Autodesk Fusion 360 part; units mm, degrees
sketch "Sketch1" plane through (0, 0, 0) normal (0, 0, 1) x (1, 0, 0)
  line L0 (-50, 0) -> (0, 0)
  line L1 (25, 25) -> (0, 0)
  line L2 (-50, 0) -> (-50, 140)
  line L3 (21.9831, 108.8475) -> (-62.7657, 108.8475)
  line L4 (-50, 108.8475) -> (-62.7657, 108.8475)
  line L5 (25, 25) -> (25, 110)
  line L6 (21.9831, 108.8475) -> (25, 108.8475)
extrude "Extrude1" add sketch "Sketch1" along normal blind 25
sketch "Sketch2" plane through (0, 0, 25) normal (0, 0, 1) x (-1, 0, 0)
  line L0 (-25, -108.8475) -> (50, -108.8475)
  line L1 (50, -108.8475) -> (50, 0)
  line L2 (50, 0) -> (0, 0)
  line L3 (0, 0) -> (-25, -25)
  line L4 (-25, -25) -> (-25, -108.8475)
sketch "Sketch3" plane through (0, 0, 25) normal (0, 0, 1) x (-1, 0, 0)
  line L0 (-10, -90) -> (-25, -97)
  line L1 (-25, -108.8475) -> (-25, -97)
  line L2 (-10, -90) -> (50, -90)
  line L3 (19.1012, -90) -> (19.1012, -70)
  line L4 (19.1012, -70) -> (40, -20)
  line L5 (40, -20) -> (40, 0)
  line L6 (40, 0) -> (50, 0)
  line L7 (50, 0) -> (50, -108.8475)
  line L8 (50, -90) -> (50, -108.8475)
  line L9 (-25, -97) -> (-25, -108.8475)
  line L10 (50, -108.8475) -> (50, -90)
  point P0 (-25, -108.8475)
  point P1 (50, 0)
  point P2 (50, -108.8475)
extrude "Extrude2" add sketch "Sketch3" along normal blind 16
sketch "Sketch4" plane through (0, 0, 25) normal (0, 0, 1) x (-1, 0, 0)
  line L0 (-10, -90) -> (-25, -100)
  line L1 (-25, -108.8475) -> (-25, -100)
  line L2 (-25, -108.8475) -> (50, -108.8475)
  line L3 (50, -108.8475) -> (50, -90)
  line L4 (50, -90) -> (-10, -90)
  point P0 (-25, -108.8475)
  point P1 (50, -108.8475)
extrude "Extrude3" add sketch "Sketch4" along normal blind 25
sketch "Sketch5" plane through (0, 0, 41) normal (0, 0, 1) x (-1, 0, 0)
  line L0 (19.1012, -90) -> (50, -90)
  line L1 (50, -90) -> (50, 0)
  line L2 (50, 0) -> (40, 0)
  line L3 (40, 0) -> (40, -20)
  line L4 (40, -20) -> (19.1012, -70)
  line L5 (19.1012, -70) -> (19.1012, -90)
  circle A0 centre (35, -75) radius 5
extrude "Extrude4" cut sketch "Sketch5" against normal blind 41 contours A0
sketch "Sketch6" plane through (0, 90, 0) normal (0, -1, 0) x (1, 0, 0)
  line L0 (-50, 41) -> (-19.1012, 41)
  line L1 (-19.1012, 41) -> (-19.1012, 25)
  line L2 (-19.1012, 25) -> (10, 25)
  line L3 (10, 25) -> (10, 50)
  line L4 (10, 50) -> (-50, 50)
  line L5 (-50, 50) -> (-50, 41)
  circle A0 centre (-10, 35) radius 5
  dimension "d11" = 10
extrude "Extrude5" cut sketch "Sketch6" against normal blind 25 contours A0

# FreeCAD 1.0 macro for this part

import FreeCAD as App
import Part
import Sketcher
from FreeCAD import Vector
Q = App.Units.Quantity

doc = App.newDocument("Part")
params = doc.addObject("Spreadsheet::Sheet", "Params")
for row, (alias, value) in enumerate([
    ("sketch1_width", "50 mm"),
    ("sketch1_width2", "75 mm"),
    ("pad1_length", "25 mm"),
    ("sketch2_width", "10 mm"),
    ("sketch2_height", "20 mm"),
    ("sketch2_height2", "90 mm"),
    ("pad2_length", "16 mm"),
    ("sketch3_width", "60 mm"),
    ("sketch3_width2", "75 mm"),
    ("pad3_length", "25 mm"),
    ("sketch4_diameter", "10 mm"),
    ("pocket1_length", "41 mm"),
    ("sketch5_diameter", "10 mm"),
    ("pocket2_length", "25 mm"),
], start=1):
    params.set(f"A{row}", alias)
    params.set(f"B{row}", "=" + value)
    params.setAlias(f"B{row}", alias)

body = doc.addObject("PartDesign::Body", "Body")

# Sketch on XY plane
sketch1 = body.newObject("Sketcher::SketchObject", "Sketch")
sketch1.AttachmentSupport = (doc.getObject("XY_Plane"), [""])
sketch1.MapMode = "FlatFace"
sketch1.addGeometry([
    Part.LineSegment(Vector(-50, 108.8475, 0), Vector(-50, 0, 0)),  # 0
    Part.LineSegment(Vector(-50, 0, 0), Vector(0, 0, 0)),  # 1
    Part.LineSegment(Vector(0, 0, 0), Vector(25, 25, 0)),  # 2
    Part.LineSegment(Vector(25, 25, 0), Vector(25, 108.8475, 0)),  # 3
    Part.LineSegment(Vector(25, 108.8475, 0), Vector(-50, 108.8475, 0)),  # 4
], False)
sketch1.addConstraint([
    Sketcher.Constraint("Coincident", 0, 2, 1, 1),
    Sketcher.Constraint("Coincident", 1, 2, 2, 1),
    Sketcher.Constraint("Coincident", 2, 2, 3, 1),
    Sketcher.Constraint("Coincident", 3, 2, 4, 1),
    Sketcher.Constraint("Coincident", 4, 2, 0, 1),
    Sketcher.Constraint("Vertical", 0),
    Sketcher.Constraint("Horizontal", 1),
    Sketcher.Constraint("Vertical", 3),
    Sketcher.Constraint("Horizontal", 4),
    Sketcher.Constraint("Coincident", 1, 2, -1, 1),
    Sketcher.Constraint("DistanceX", 1, 1, 1, 2, 50.0),
    Sketcher.Constraint("DistanceX", 4, 2, 4, 1, 75.0),
    Sketcher.Constraint("Angle", 2, Q("45 deg")),
    Sketcher.Constraint("DistanceY", 0, 2, 0, 1, 108.8475),
])
sketch1.setExpression("Constraints[10]", "Params.sketch1_width")
sketch1.setExpression("Constraints[11]", "Params.sketch1_width2")
pad1 = body.newObject("PartDesign::Pad", "Pad")
pad1.Profile = sketch1
pad1.setExpression("Length", "Params.pad1_length")

# Sketch on XY plane
sketch2 = body.newObject("Sketcher::SketchObject", "Sketch001")
sketch2.AttachmentSupport = (doc.getObject("XY_Plane"), [""])
sketch2.MapMode = "FlatFace"
sketch2.AttachmentOffset = App.Placement(Vector(0, 0, 25), App.Rotation())
sketch2.addGeometry([
    Part.LineSegment(Vector(-19.1012, 70, 0), Vector(-19.1012, 90, 0)),  # 0
    Part.LineSegment(Vector(-19.1012, 90, 0), Vector(-50, 90, 0)),  # 1
    Part.LineSegment(Vector(-50, 90, 0), Vector(-50, 0, 0)),  # 2
    Part.LineSegment(Vector(-50, 0, 0), Vector(-40, 0, 0)),  # 3
    Part.LineSegment(Vector(-40, 0, 0), Vector(-40, 20, 0)),  # 4
    Part.LineSegment(Vector(-40, 20, 0), Vector(-19.1012, 70, 0)),  # 5
], False)
sketch2.addConstraint([
    Sketcher.Constraint("Coincident", 0, 2, 1, 1),
    Sketcher.Constraint("Coincident", 1, 2, 2, 1),
    Sketcher.Constraint("Coincident", 2, 2, 3, 1),
    Sketcher.Constraint("Coincident", 3, 2, 4, 1),
    Sketcher.Constraint("Coincident", 4, 2, 5, 1),
    Sketcher.Constraint("Coincident", 5, 2, 0, 1),
    Sketcher.Constraint("Vertical", 0),
    Sketcher.Constraint("Horizontal", 1),
    Sketcher.Constraint("Vertical", 2),
    Sketcher.Constraint("Horizontal", 3),
    Sketcher.Constraint("Vertical", 4),
    Sketcher.Constraint("PointOnObject", 2, 2, -1),
    Sketcher.Constraint("Equal", 0, 4),
    Sketcher.Constraint("DistanceX", 3, 1, 3, 2, 10.0),
    Sketcher.Constraint("DistanceY", 0, 1, 0, 2, 20.0),
    Sketcher.Constraint("DistanceY", 2, 2, 2, 1, 90.0),
    Sketcher.Constraint("DistanceX", 1, 2, -1, 1, 50.0),
    Sketcher.Constraint("DistanceX", 1, 2, 1, 1, 30.8988),
])
sketch2.setExpression("Constraints[13]", "Params.sketch2_width")
sketch2.setExpression("Constraints[14]", "Params.sketch2_height")
sketch2.setExpression("Constraints[15]", "Params.sketch2_height2")
pad2 = body.newObject("PartDesign::Pad", "Pad001")
pad2.Profile = sketch2
pad2.setExpression("Length", "Params.pad2_length")

# Sketch on XY plane
sketch3 = body.newObject("Sketcher::SketchObject", "Sketch002")
sketch3.AttachmentSupport = (doc.getObject("XY_Plane"), [""])
sketch3.MapMode = "FlatFace"
sketch3.AttachmentOffset = App.Placement(Vector(0, 0, 25), App.Rotation())
sketch3.addGeometry([
    Part.LineSegment(Vector(-50, 90, 0), Vector(10, 90, 0)),  # 0
    Part.LineSegment(Vector(10, 90, 0), Vector(25, 100, 0)),  # 1
    Part.LineSegment(Vector(25, 100, 0), Vector(25, 108.8475, 0)),  # 2
    Part.LineSegment(Vector(25, 108.8475, 0), Vector(-50, 108.8475, 0)),  # 3
    Part.LineSegment(Vector(-50, 108.8475, 0), Vector(-50, 90, 0)),  # 4
], False)
sketch3.addConstraint([
    Sketcher.Constraint("Coincident", 0, 2, 1, 1),
    Sketcher.Constraint("Coincident", 1, 2, 2, 1),
    Sketcher.Constraint("Coincident", 2, 2, 3, 1),
    Sketcher.Constraint("Coincident", 3, 2, 4, 1),
    Sketcher.Constraint("Coincident", 4, 2, 0, 1),
    Sketcher.Constraint("Horizontal", 0),
    Sketcher.Constraint("Vertical", 2),
    Sketcher.Constraint("Horizontal", 3),
    Sketcher.Constraint("Vertical", 4),
    Sketcher.Constraint("DistanceX", 0, 1, 0, 2, 60.0),
    Sketcher.Constraint("DistanceX", 3, 2, 3, 1, 75.0),
    Sketcher.Constraint("DistanceX", -1, 1, 0, 2, 10.0),
    Sketcher.Constraint("DistanceY", -1, 1, 0, 2, 90.0),
    Sketcher.Constraint("DistanceY", -1, 1, 1, 2, 100.0),
    Sketcher.Constraint("DistanceY", 2, 1, 2, 2, 8.8475),
])
sketch3.setExpression("Constraints[9]", "Params.sketch3_width")
sketch3.setExpression("Constraints[10]", "Params.sketch3_width2")
pad3 = body.newObject("PartDesign::Pad", "Pad002")
pad3.Profile = sketch3
pad3.setExpression("Length", "Params.pad3_length")

# Sketch on XY plane
sketch4 = body.newObject("Sketcher::SketchObject", "Sketch003")
sketch4.AttachmentSupport = (doc.getObject("XY_Plane"), [""])
sketch4.MapMode = "FlatFace"
sketch4.AttachmentOffset = App.Placement(Vector(0, 0, 41), App.Rotation())
sketch4.addGeometry(Part.Circle(Vector(-35, 75, 0), Vector(0, 0, 1), 5), False)
sketch4.addConstraint([
    Sketcher.Constraint("Diameter", 0, 10.0),
    Sketcher.Constraint("DistanceX", 0, 3, -1, 1, 35.0),
    Sketcher.Constraint("DistanceY", -1, 1, 0, 3, 75.0),
])
sketch4.setExpression("Constraints[0]", "Params.sketch4_diameter")
pocket1 = body.newObject("PartDesign::Pocket", "Pocket")
pocket1.Profile = sketch4
pocket1.setExpression("Length", "Params.pocket1_length")

# Sketch on XZ plane
sketch5 = body.newObject("Sketcher::SketchObject", "Sketch004")
sketch5.AttachmentSupport = (doc.getObject("XZ_Plane"), [""])
sketch5.MapMode = "FlatFace"
sketch5.AttachmentOffset = App.Placement(Vector(0, 0, -90), App.Rotation())
sketch5.addGeometry(Part.Circle(Vector(-10, 35, 0), Vector(0, 0, 1), 5), False)
sketch5.addConstraint([
    Sketcher.Constraint("Diameter", 0, 10.0),
    Sketcher.Constraint("DistanceX", 0, 3, -1, 1, 10.0),
    Sketcher.Constraint("DistanceY", -1, 1, 0, 3, 35.0),
])
sketch5.setExpression("Constraints[0]", "Params.sketch5_diameter")
pocket2 = body.newObject("PartDesign::Pocket", "Pocket001")
pocket2.Profile = sketch5
pocket2.setExpression("Length", "Params.pocket2_length")

doc.recompute()
